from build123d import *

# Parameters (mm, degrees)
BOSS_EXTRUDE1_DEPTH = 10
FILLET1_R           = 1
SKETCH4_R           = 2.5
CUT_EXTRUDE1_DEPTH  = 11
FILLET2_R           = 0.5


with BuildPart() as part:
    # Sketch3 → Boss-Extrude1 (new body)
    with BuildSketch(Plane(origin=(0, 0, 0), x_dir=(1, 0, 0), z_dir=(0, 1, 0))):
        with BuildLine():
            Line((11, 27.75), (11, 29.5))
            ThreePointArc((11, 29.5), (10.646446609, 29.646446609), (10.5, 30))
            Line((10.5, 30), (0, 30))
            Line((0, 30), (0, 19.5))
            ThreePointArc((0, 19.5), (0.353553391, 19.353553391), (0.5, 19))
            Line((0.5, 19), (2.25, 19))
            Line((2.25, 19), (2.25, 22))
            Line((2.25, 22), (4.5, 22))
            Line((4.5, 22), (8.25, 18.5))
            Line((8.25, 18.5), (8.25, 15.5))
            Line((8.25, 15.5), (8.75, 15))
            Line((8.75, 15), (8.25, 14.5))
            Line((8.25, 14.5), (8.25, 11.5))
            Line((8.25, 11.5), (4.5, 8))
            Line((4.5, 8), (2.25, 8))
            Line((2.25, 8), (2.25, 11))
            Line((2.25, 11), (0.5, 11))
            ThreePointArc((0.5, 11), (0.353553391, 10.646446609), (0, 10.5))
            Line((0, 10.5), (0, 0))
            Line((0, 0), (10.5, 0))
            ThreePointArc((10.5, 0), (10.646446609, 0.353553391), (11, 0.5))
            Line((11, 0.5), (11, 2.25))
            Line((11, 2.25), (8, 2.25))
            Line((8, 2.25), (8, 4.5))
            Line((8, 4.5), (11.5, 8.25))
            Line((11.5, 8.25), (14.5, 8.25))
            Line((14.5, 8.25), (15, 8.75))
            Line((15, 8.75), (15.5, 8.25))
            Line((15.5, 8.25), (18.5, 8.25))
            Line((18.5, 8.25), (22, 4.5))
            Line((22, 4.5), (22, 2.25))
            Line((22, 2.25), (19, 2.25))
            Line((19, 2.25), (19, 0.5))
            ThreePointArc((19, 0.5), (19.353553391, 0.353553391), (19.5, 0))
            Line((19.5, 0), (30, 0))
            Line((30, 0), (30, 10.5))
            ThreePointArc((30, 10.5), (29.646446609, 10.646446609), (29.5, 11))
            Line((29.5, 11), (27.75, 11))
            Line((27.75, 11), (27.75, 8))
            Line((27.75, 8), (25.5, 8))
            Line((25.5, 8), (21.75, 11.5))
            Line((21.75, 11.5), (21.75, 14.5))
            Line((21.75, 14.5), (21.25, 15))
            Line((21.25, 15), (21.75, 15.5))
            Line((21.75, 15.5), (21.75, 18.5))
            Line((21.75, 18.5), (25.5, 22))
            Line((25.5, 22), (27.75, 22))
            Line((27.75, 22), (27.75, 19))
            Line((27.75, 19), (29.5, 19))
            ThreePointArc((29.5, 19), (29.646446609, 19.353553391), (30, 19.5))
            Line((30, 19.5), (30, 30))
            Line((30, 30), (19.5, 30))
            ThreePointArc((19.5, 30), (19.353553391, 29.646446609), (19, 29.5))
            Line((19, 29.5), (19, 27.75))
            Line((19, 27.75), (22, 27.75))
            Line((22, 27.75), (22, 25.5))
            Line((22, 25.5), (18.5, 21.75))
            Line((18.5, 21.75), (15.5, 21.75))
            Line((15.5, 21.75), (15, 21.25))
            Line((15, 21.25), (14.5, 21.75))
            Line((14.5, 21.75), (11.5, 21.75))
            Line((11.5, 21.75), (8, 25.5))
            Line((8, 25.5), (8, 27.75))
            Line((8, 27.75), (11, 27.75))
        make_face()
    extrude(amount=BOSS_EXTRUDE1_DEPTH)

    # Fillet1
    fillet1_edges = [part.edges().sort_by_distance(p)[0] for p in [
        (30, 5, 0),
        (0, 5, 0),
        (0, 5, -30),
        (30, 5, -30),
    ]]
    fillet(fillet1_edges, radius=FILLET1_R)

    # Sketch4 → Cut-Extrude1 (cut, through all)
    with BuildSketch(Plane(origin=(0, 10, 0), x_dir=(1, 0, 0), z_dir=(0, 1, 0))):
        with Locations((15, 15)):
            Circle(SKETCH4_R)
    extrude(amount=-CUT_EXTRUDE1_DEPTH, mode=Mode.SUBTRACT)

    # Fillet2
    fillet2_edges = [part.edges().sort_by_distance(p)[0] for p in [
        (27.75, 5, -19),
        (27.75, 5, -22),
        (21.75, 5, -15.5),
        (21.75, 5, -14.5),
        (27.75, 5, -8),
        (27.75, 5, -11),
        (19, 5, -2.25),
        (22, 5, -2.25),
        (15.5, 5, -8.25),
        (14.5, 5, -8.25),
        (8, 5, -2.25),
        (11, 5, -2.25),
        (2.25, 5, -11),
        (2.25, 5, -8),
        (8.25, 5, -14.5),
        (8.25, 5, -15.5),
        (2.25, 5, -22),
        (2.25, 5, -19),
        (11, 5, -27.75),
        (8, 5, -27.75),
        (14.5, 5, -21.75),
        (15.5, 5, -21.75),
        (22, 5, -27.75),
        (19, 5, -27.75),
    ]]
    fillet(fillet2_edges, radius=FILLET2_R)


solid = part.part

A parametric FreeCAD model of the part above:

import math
import FreeCAD as App
import Part
import Sketcher

V = App.Vector
Q = App.Units.Quantity


def edges_at(feature, points):
    """Names of the edges that pass closest to the given points."""
    edges = feature.Shape.Edges
    near = lambda p: min(range(len(edges)), key=lambda i: edges[i].distToShape(Part.Vertex(*p))[0])
    return sorted({f"Edge{near(p) + 1}" for p in points})

doc = App.newDocument("Part")
body = doc.addObject("PartDesign::Body", "Body")

# Sketch on XZ plane
sketch1 = doc.addObject("Sketcher::SketchObject", "Sketch")
body.addObject(sketch1)
sketch1.AttachmentSupport = (doc.XZ_Plane, [""])
sketch1.MapMode = "FlatFace"
sketch1.addGeometry(Part.LineSegment(V(11, -27.75, 0), V(11, -29.5, 0)), False)
sketch1.addGeometry(Part.ArcOfCircle(Part.Circle(V(11, -30, 0), V(0, 0, 1), 0.5), math.radians(90), math.radians(180)), False)
sketch1.addGeometry(Part.LineSegment(V(10.5, -30, 0), V(0, -30, 0)), False)
sketch1.addGeometry(Part.LineSegment(V(0, -30, 0), V(0, -19.5, 0)), False)
sketch1.addGeometry(Part.ArcOfCircle(Part.Circle(V(0, -19, 0), V(0, 0, 1), 0.5), math.radians(-90), math.radians(0)), False)
sketch1.addGeometry(Part.LineSegment(V(0.5, -19, 0), V(2.25, -19, 0)), False)
sketch1.addGeometry(Part.LineSegment(V(2.25, -19, 0), V(2.25, -22, 0)), False)
sketch1.addGeometry(Part.LineSegment(V(2.25, -22, 0), V(4.5, -22, 0)), False)
sketch1.addGeometry(Part.LineSegment(V(4.5, -22, 0), V(8.25, -18.5, 0)), False)
sketch1.addGeometry(Part.LineSegment(V(8.25, -18.5, 0), V(8.25, -15.5, 0)), False)
sketch1.addGeometry(Part.LineSegment(V(8.25, -15.5, 0), V(8.75, -15, 0)), False)
sketch1.addGeometry(Part.LineSegment(V(8.75, -15, 0), V(8.25, -14.5, 0)), False)
sketch1.addGeometry(Part.LineSegment(V(8.25, -14.5, 0), V(8.25, -11.5, 0)), False)
sketch1.addGeometry(Part.LineSegment(V(8.25, -11.5, 0), V(4.5, -8, 0)), False)
sketch1.addGeometry(Part.LineSegment(V(4.5, -8, 0), V(2.25, -8, 0)), False)
sketch1.addGeometry(Part.LineSegment(V(2.25, -8, 0), V(2.25, -11, 0)), False)
sketch1.addGeometry(Part.LineSegment(V(2.25, -11, 0), V(0.5, -11, 0)), False)
sketch1.addGeometry(Part.ArcOfCircle(Part.Circle(V(0, -11, 0), V(0, 0, 1), 0.5), math.radians(0), math.radians(90)), False)
sketch1.addGeometry(Part.LineSegment(V(0, -10.5, 0), V(0, 0, 0)), False)
sketch1.addGeometry(Part.LineSegment(V(0, 0, 0), V(10.5, 0, 0)), False)
sketch1.addGeometry(Part.ArcOfCircle(Part.Circle(V(11, 0, 0), V(0, 0, 1), 0.5), math.radians(180), math.radians(270)), False)
sketch1.addGeometry(Part.LineSegment(V(11, -0.5, 0), V(11, -2.25, 0)), False)
sketch1.addGeometry(Part.LineSegment(V(11, -2.25, 0), V(8, -2.25, 0)), False)
sketch1.addGeometry(Part.LineSegment(V(8, -2.25, 0), V(8, -4.5, 0)), False)
sketch1.addGeometry(Part.LineSegment(V(8, -4.5, 0), V(11.5, -8.25, 0)), False)
sketch1.addGeometry(Part.LineSegment(V(11.5, -8.25, 0), V(14.5, -8.25, 0)), False)
sketch1.addGeometry(Part.LineSegment(V(14.5, -8.25, 0), V(15, -8.75, 0)), False)
sketch1.addGeometry(Part.LineSegment(V(15, -8.75, 0), V(15.5, -8.25, 0)), False)
sketch1.addGeometry(Part.LineSegment(V(15.5, -8.25, 0), V(18.5, -8.25, 0)), False)
sketch1.addGeometry(Part.LineSegment(V(18.5, -8.25, 0), V(22, -4.5, 0)), False)
sketch1.addGeometry(Part.LineSegment(V(22, -4.5, 0), V(22, -2.25, 0)), False)
sketch1.addGeometry(Part.LineSegment(V(22, -2.25, 0), V(19, -2.25, 0)), False)
sketch1.addGeometry(Part.LineSegment(V(19, -2.25, 0), V(19, -0.5, 0)), False)
sketch1.addGeometry(Part.ArcOfCircle(Part.Circle(V(19, 0, 0), V(0, 0, 1), 0.5), math.radians(-90), math.radians(0)), False)
sketch1.addGeometry(Part.LineSegment(V(19.5, 0, 0), V(30, 0, 0)), False)
sketch1.addGeometry(Part.LineSegment(V(30, 0, 0), V(30, -10.5, 0)), False)
sketch1.addGeometry(Part.ArcOfCircle(Part.Circle(V(30, -11, 0), V(0, 0, 1), 0.5), math.radians(90), math.radians(180)), False)
sketch1.addGeometry(Part.LineSegment(V(29.5, -11, 0), V(27.75, -11, 0)), False)
sketch1.addGeometry(Part.LineSegment(V(27.75, -11, 0), V(27.75, -8, 0)), False)
sketch1.addGeometry(Part.LineSegment(V(27.75, -8, 0), V(25.5, -8, 0)), False)
sketch1.addGeometry(Part.LineSegment(V(25.5, -8, 0), V(21.75, -11.5, 0)), False)
sketch1.addGeometry(Part.LineSegment(V(21.75, -11.5, 0), V(21.75, -14.5, 0)), False)
sketch1.addGeometry(Part.LineSegment(V(21.75, -14.5, 0), V(21.25, -15, 0)), False)
sketch1.addGeometry(Part.LineSegment(V(21.25, -15, 0), V(21.75, -15.5, 0)), False)
sketch1.addGeometry(Part.LineSegment(V(21.75, -15.5, 0), V(21.75, -18.5, 0)), False)
sketch1.addGeometry(Part.LineSegment(V(21.75, -18.5, 0), V(25.5, -22, 0)), False)
sketch1.addGeometry(Part.LineSegment(V(25.5, -22, 0), V(27.75, -22, 0)), False)
sketch1.addGeometry(Part.LineSegment(V(27.75, -22, 0), V(27.75, -19, 0)), False)
sketch1.addGeometry(Part.LineSegment(V(27.75, -19, 0), V(29.5, -19, 0)), False)
sketch1.addGeometry(Part.ArcOfCircle(Part.Circle(V(30, -19, 0), V(0, 0, 1), 0.5), math.radians(180), math.radians(270)), False)
sketch1.addGeometry(Part.LineSegment(V(30, -19.5, 0), V(30, -30, 0)), False)
sketch1.addGeometry(Part.LineSegment(V(30, -30, 0), V(19.5, -30, 0)), False)
sketch1.addGeometry(Part.ArcOfCircle(Part.Circle(V(19, -30, 0), V(0, 0, 1), 0.5), math.radians(0), math.radians(90)), False)
sketch1.addGeometry(Part.LineSegment(V(19, -29.5, 0), V(19, -27.75, 0)), False)
sketch1.addGeometry(Part.LineSegment(V(19, -27.75, 0), V(22, -27.75, 0)), False)
sketch1.addGeometry(Part.LineSegment(V(22, -27.75, 0), V(22, -25.5, 0)), False)
sketch1.addGeometry(Part.LineSegment(V(22, -25.5, 0), V(18.5, -21.75, 0)), False)
sketch1.addGeometry(Part.LineSegment(V(18.5, -21.75, 0), V(15.5, -21.75, 0)), False)
sketch1.addGeometry(Part.LineSegment(V(15.5, -21.75, 0), V(15, -21.25, 0)), False)
sketch1.addGeometry(Part.LineSegment(V(15, -21.25, 0), V(14.5, -21.75, 0)), False)
sketch1.addGeometry(Part.LineSegment(V(14.5, -21.75, 0), V(11.5, -21.75, 0)), False)
sketch1.addGeometry(Part.LineSegment(V(11.5, -21.75, 0), V(8, -25.5, 0)), False)
sketch1.addGeometry(Part.LineSegment(V(8, -25.5, 0), V(8, -27.75, 0)), False)
sketch1.addGeometry(Part.LineSegment(V(8, -27.75, 0), V(11, -27.75, 0)), False)
sketch1.addConstraint(Sketcher.Constraint("Coincident", 0, 2, 1, 1))
sketch1.addConstraint(Sketcher.Constraint("Coincident", 1, 2, 2, 1))
sketch1.addConstraint(Sketcher.Constraint("Coincident", 2, 2, 3, 1))
sketch1.addConstraint(Sketcher.Constraint("Coincident", 3, 2, 4, 1))
sketch1.addConstraint(Sketcher.Constraint("Coincident", 4, 2, 5, 1))
sketch1.addConstraint(Sketcher.Constraint("Coincident", 5, 2, 6, 1))
sketch1.addConstraint(Sketcher.Constraint("Coincident", 6, 2, 7, 1))
sketch1.addConstraint(Sketcher.Constraint("Coincident", 7, 2, 8, 1))
sketch1.addConstraint(Sketcher.Constraint("Coincident", 8, 2, 9, 1))
sketch1.addConstraint(Sketcher.Constraint("Coincident", 9, 2, 10, 1))
sketch1.addConstraint(Sketcher.Constraint("Coincident", 10, 2, 11, 1))
sketch1.addConstraint(Sketcher.Constraint("Coincident", 11, 2, 12, 1))
sketch1.addConstraint(Sketcher.Constraint("Coincident", 12, 2, 13, 1))
sketch1.addConstraint(Sketcher.Constraint("Coincident", 13, 2, 14, 1))
sketch1.addConstraint(Sketcher.Constraint("Coincident", 14, 2, 15, 1))
sketch1.addConstraint(Sketcher.Constraint("Coincident", 15, 2, 16, 1))
sketch1.addConstraint(Sketcher.Constraint("Coincident", 16, 2, 17, 1))
sketch1.addConstraint(Sketcher.Constraint("Coincident", 17, 2, 18, 1))
sketch1.addConstraint(Sketcher.Constraint("Coincident", 18, 2, 19, 1))
sketch1.addConstraint(Sketcher.Constraint("Coincident", 19, 2, 20, 1))
sketch1.addConstraint(Sketcher.Constraint("Coincident", 20, 2, 21, 1))
sketch1.addConstraint(Sketcher.Constraint("Coincident", 21, 2, 22, 1))
sketch1.addConstraint(Sketcher.Constraint("Coincident", 22, 2, 23, 1))
sketch1.addConstraint(Sketcher.Constraint("Coincident", 23, 2, 24, 1))
sketch1.addConstraint(Sketcher.Constraint("Coincident", 24, 2, 25, 1))
sketch1.addConstraint(Sketcher.Constraint("Coincident", 25, 2, 26, 1))
sketch1.addConstraint(Sketcher.Constraint("Coincident", 26, 2, 27, 1))
sketch1.addConstraint(Sketcher.Constraint("Coincident", 27, 2, 28, 1))
sketch1.addConstraint(Sketcher.Constraint("Coincident", 28, 2, 29, 1))
sketch1.addConstraint(Sketcher.Constraint("Coincident", 29, 2, 30, 1))
sketch1.addConstraint(Sketcher.Constraint("Coincident", 30, 2, 31, 1))
sketch1.addConstraint(Sketcher.Constraint("Coincident", 31, 2, 32, 1))
sketch1.addConstraint(Sketcher.Constraint("Coincident", 32, 2, 33, 1))
sketch1.addConstraint(Sketcher.Constraint("Coincident", 33, 2, 34, 1))
sketch1.addConstraint(Sketcher.Constraint("Coincident", 34, 2, 35, 1))
sketch1.addConstraint(Sketcher.Constraint("Coincident", 35, 2, 36, 1))
sketch1.addConstraint(Sketcher.Constraint("Coincident", 36, 2, 37, 1))
sketch1.addConstraint(Sketcher.Constraint("Coincident", 37, 2, 38, 1))
sketch1.addConstraint(Sketcher.Constraint("Coincident", 38, 2, 39, 1))
sketch1.addConstraint(Sketcher.Constraint("Coincident", 39, 2, 40, 1))
sketch1.addConstraint(Sketcher.Constraint("Coincident", 40, 2, 41, 1))
sketch1.addConstraint(Sketcher.Constraint("Coincident", 41, 2, 42, 1))
sketch1.addConstraint(Sketcher.Constraint("Coincident", 42, 2, 43, 1))
sketch1.addConstraint(Sketcher.Constraint("Coincident", 43, 2, 44, 1))
sketch1.addConstraint(Sketcher.Constraint("Coincident", 44, 2, 45, 1))
sketch1.addConstraint(Sketcher.Constraint("Coincident", 45, 2, 46, 1))
sketch1.addConstraint(Sketcher.Constraint("Coincident", 46, 2, 47, 1))
sketch1.addConstraint(Sketcher.Constraint("Coincident", 47, 2, 48, 1))
sketch1.addConstraint(Sketcher.Constraint("Coincident", 48, 2, 49, 1))
sketch1.addConstraint(Sketcher.Constraint("Coincident", 49, 2, 50, 1))
sketch1.addConstraint(Sketcher.Constraint("Coincident", 50, 2, 51, 1))
sketch1.addConstraint(Sketcher.Constraint("Coincident", 51, 2, 52, 1))
sketch1.addConstraint(Sketcher.Constraint("Coincident", 52, 2, 53, 1))
sketch1.addConstraint(Sketcher.Constraint("Coincident", 53, 2, 54, 1))
sketch1.addConstraint(Sketcher.Constraint("Coincident", 54, 2, 55, 1))
sketch1.addConstraint(Sketcher.Constraint("Coincident", 55, 2, 56, 1))
sketch1.addConstraint(Sketcher.Constraint("Coincident", 56, 2, 57, 1))
sketch1.addConstraint(Sketcher.Constraint("Coincident", 57, 2, 58, 1))
sketch1.addConstraint(Sketcher.Constraint("Coincident", 58, 2, 59, 1))
sketch1.addConstraint(Sketcher.Constraint("Coincident", 59, 2, 60, 1))
sketch1.addConstraint(Sketcher.Constraint("Coincident", 60, 2, 61, 1))
sketch1.addConstraint(Sketcher.Constraint("Coincident", 61, 2, 62, 1))
sketch1.addConstraint(Sketcher.Constraint("Coincident", 62, 2, 63, 1))
sketch1.addConstraint(Sketcher.Constraint("Coincident", 63, 2, 0, 1))
sketch1.addConstraint(Sketcher.Constraint("Vertical", 0))
sketch1.addConstraint(Sketcher.Constraint("Horizontal", 2))
sketch1.addConstraint(Sketcher.Constraint("Vertical", 3))
sketch1.addConstraint(Sketcher.Constraint("Horizontal", 5))
sketch1.addConstraint(Sketcher.Constraint("Vertical", 6))
sketch1.addConstraint(Sketcher.Constraint("Horizontal", 7))
sketch1.addConstraint(Sketcher.Constraint("Vertical", 9))
sketch1.addConstraint(Sketcher.Constraint("Vertical", 12))
sketch1.addConstraint(Sketcher.Constraint("Horizontal", 14))
sketch1.addConstraint(Sketcher.Constraint("Vertical", 15))
sketch1.addConstraint(Sketcher.Constraint("Horizontal", 16))
sketch1.addConstraint(Sketcher.Constraint("Vertical", 18))
sketch1.addConstraint(Sketcher.Constraint("Horizontal", 19))
sketch1.addConstraint(Sketcher.Constraint("Vertical", 21))
sketch1.addConstraint(Sketcher.Constraint("Horizontal", 22))
sketch1.addConstraint(Sketcher.Constraint("Vertical", 23))
sketch1.addConstraint(Sketcher.Constraint("Horizontal", 25))
sketch1.addConstraint(Sketcher.Constraint("Horizontal", 28))
sketch1.addConstraint(Sketcher.Constraint("Vertical", 30))
sketch1.addConstraint(Sketcher.Constraint("Horizontal", 31))
sketch1.addConstraint(Sketcher.Constraint("Vertical", 32))
sketch1.addConstraint(Sketcher.Constraint("Horizontal", 34))
sketch1.addConstraint(Sketcher.Constraint("Vertical", 35))
sketch1.addConstraint(Sketcher.Constraint("Horizontal", 37))
sketch1.addConstraint(Sketcher.Constraint("Vertical", 38))
sketch1.addConstraint(Sketcher.Constraint("Horizontal", 39))
sketch1.addConstraint(Sketcher.Constraint("Vertical", 41))
sketch1.addConstraint(Sketcher.Constraint("Vertical", 44))
sketch1.addConstraint(Sketcher.Constraint("Horizontal", 46))
sketch1.addConstraint(Sketcher.Constraint("Vertical", 47))
sketch1.addConstraint(Sketcher.Constraint("Horizontal", 48))
sketch1.addConstraint(Sketcher.Constraint("Vertical", 50))
sketch1.addConstraint(Sketcher.Constraint("Horizontal", 51))
sketch1.addConstraint(Sketcher.Constraint("Vertical", 53))
sketch1.addConstraint(Sketcher.Constraint("Horizontal", 54))
sketch1.addConstraint(Sketcher.Constraint("Vertical", 55))
sketch1.addConstraint(Sketcher.Constraint("Horizontal", 57))
sketch1.addConstraint(Sketcher.Constraint("Horizontal", 60))
sketch1.addConstraint(Sketcher.Constraint("Vertical", 62))
sketch1.addConstraint(Sketcher.Constraint("Horizontal", 63))
sketch1.addConstraint(Sketcher.Constraint("Coincident", 18, 2, -1, 1))
sketch1.addConstraint(Sketcher.Constraint("Equal", 1, 4))
sketch1.addConstraint(Sketcher.Constraint("Equal", 4, 17))
sketch1.addConstraint(Sketcher.Constraint("Equal", 17, 20))
sketch1.addConstraint(Sketcher.Constraint("Equal", 20, 33))
sketch1.addConstraint(Sketcher.Constraint("Equal", 33, 36))
sketch1.addConstraint(Sketcher.Constraint("Equal", 36, 49))
sketch1.addConstraint(Sketcher.Constraint("Equal", 49, 52))
sketch1.addConstraint(Sketcher.Constraint("PointOnObject", 4, 3, -2))
sketch1.addConstraint(Sketcher.Constraint("PointOnObject", 17, 3, -2))
sketch1.addConstraint(Sketcher.Constraint("PointOnObject", 20, 3, -1))
sketch1.addConstraint(Sketcher.Constraint("PointOnObject", 33, 3, -1))
sketch1.addConstraint(Sketcher.Constraint("PointOnObject", 2, 2, -2))
sketch1.addConstraint(Sketcher.Constraint("PointOnObject", 33, 2, -1))
sketch1.addConstraint(Sketcher.Constraint("Perpendicular", 10, 11))
sketch1.addConstraint(Sketcher.Constraint("Perpendicular", 8, 24))
sketch1.addConstraint(Sketcher.Constraint("Parallel", 11, 26))
sketch1.addConstraint(Sketcher.Constraint("Perpendicular", 26, 27))
sketch1.addConstraint(Sketcher.Constraint("Perpendicular", 13, 29))
sketch1.addConstraint(Sketcher.Constraint("Perpendicular", 24, 40))
sketch1.addConstraint(Sketcher.Constraint("Parallel", 27, 42))
sketch1.addConstraint(Sketcher.Constraint("Perpendicular", 42, 43))
sketch1.addConstraint(Sketcher.Constraint("Perpendicular", 29, 45))
sketch1.addConstraint(Sketcher.Constraint("Perpendicular", 40, 56))
sketch1.addConstraint(Sketcher.Constraint("Parallel", 43, 58))
sketch1.addConstraint(Sketcher.Constraint("Perpendicular", 58, 59))
sketch1.addConstraint(Sketcher.Constraint("Perpendicular", 45, 61))
sketch1.addConstraint(Sketcher.Constraint("Horizontal", 17, 3, 36, 3))
sketch1.addConstraint(Sketcher.Constraint("Horizontal", 4, 3, 49, 3))
sketch1.addConstraint(Sketcher.Constraint("Horizontal", 1, 3, 52, 3))
sketch1.addConstraint(Sketcher.Constraint("Horizontal", 52, 3, 1, 2))
sketch1.addConstraint(Sketcher.Constraint("Horizontal", 49, 3, 4, 2))
sketch1.addConstraint(Sketcher.Constraint("Horizontal", 36, 3, 15, 2))
sketch1.addConstraint(Sketcher.Constraint("Horizontal", 25, 2, 27, 2))
sketch1.addConstraint(Sketcher.Constraint("Horizontal", 23, 2, 29, 2))
sketch1.addConstraint(Sketcher.Constraint("Horizontal", 22, 2, 30, 2))
sketch1.addConstraint(Sketcher.Constraint("Horizontal", 16, 2, 36, 2))
sketch1.addConstraint(Sketcher.Constraint("Horizontal", 14, 2, 38, 2))
sketch1.addConstraint(Sketcher.Constraint("Horizontal", 12, 2, 40, 2))
sketch1.addConstraint(Sketcher.Constraint("Horizontal", 11, 2, 41, 2))
sketch1.addConstraint(Sketcher.Constraint("Horizontal", 10, 2, 42, 2))
sketch1.addConstraint(Sketcher.Constraint("Horizontal", 9, 2, 43, 2))
sketch1.addConstraint(Sketcher.Constraint("Horizontal", 8, 2, 44, 2))
sketch1.addConstraint(Sketcher.Constraint("Horizontal", 7, 2, 45, 2))
sketch1.addConstraint(Sketcher.Constraint("Horizontal", 5, 2, 47, 2))
sketch1.addConstraint(Sketcher.Constraint("Horizontal", 2, 2, 50, 2))
sketch1.addConstraint(Sketcher.Constraint("Horizontal", 57, 2, 59, 2))
sketch1.addConstraint(Sketcher.Constraint("Horizontal", 55, 2, 61, 2))
sketch1.addConstraint(Sketcher.Constraint("Horizontal", 54, 2, 62, 2))
sketch1.addConstraint(Sketcher.Constraint("Vertical", 1, 3, 20, 3))
sketch1.addConstraint(Sketcher.Constraint("Vertical", 36, 3, 49, 3))
sketch1.addConstraint(Sketcher.Constraint("Vertical", 33, 3, 52, 3))
sketch1.addConstraint(Sketcher.Constraint("Vertical", 20, 3, 0, 2))
sketch1.addConstraint(Sketcher.Constraint("Vertical", 9, 2, 11, 2))
sketch1.addConstraint(Sketcher.Constraint("Vertical", 7, 2, 13, 2))
sketch1.addConstraint(Sketcher.Constraint("Vertical", 6, 2, 14, 2))
sketch1.addConstraint(Sketcher.Constraint("Vertical", 0, 2, 20, 2))
sketch1.addConstraint(Sketcher.Constraint("Vertical", 52, 3, 31, 2))
sketch1.addConstraint(Sketcher.Constraint("Vertical", 49, 3, 34, 2))
sketch1.addConstraint(Sketcher.Constraint("Vertical", 41, 2, 43, 2))
sketch1.addConstraint(Sketcher.Constraint("Vertical", 39, 2, 45, 2))
sketch1.addConstraint(Sketcher.Constraint("Vertical", 38, 2, 46, 2))
sketch1.addConstraint(Sketcher.Constraint("Vertical", 35, 2, 49, 2))
sketch1.addConstraint(Sketcher.Constraint("Vertical", 32, 2, 52, 2))
sketch1.addConstraint(Sketcher.Constraint("Vertical", 30, 2, 54, 2))
sketch1.addConstraint(Sketcher.Constraint("Vertical", 28, 2, 56, 2))
sketch1.addConstraint(Sketcher.Constraint("Vertical", 27, 2, 57, 2))
sketch1.addConstraint(Sketcher.Constraint("Vertical", 26, 2, 58, 2))
sketch1.addConstraint(Sketcher.Constraint("Vertical", 24, 2, 60, 2))
sketch1.addConstraint(Sketcher.Constraint("Equal", 22, 25))
sketch1.addConstraint(Sketcher.Constraint("Equal", 25, 28))
sketch1.addConstraint(Sketcher.Constraint("Equal", 28, 31))
sketch1.addConstraint(Sketcher.Constraint("Equal", 19, 34))
sketch1.addConstraint(Sketcher.Constraint("Equal", 16, 37))
sketch1.addConstraint(Sketcher.Constraint("Equal", 14, 39))
sketch1.addConstraint(Sketcher.Constraint("Equal", 48, 0))
sketch1.addConstraint(Sketcher.Constraint("Equal", 51, 3))
sketch1.addConstraint(Sketcher.Constraint("Equal", 63, 6))
sketch1.addConstraint(Sketcher.Constraint("Equal", 6, 9))
sketch1.addConstraint(Sketcher.Constraint("Equal", 9, 12))
sketch1.addConstraint(Sketcher.Constraint("Equal", 12, 15))
sketch1.addConstraint(Sketcher.Constraint("Equal", 3, 18))
sketch1.addConstraint(Sketcher.Constraint("Equal", 0, 21))
sketch1.addConstraint(Sketcher.Constraint("Equal", 46, 23))
sketch1.addConstraint(Sketcher.Constraint("Equal", 30, 55))
sketch1.addConstraint(Sketcher.Constraint("Equal", 13, 24))
sketch1.addConstraint(Sketcher.Constraint("Equal", 11, 26))
sketch1.addConstraint(Sketcher.Constraint("Radius", 1, Q("0.5 mm")))
sketch1.addConstraint(Sketcher.Constraint("DistanceX", 22, 2, 22, 1, Q("3 mm")))
sketch1.addConstraint(Sketcher.Constraint("DistanceX", 2, 2, 2, 1, Q("10.5 mm")))
sketch1.addConstraint(Sketcher.Constraint("DistanceY", 1, 3, -1, 1, Q("30 mm")))
sketch1.addConstraint(Sketcher.Constraint("DistanceX", 5, 1, 5, 2, Q("1.75 mm")))
sketch1.addConstraint(Sketcher.Constraint("DistanceX", 7, 1, 7, 2, Q("2.25 mm")))
sketch1.addConstraint(Sketcher.Constraint("DistanceY", 8, 2, -1, 1, Q("18.5 mm")))
sketch1.addConstraint(Sketcher.Constraint("DistanceX", -1, 1, 8, 2, Q("8.25 mm")))
pad1 = doc.addObject("PartDesign::Pad", "Pad")
body.addObject(pad1)
pad1.Profile = sketch1
pad1.Length = 10
pad1.Reversed = True
doc.recompute()

fillet = doc.addObject("PartDesign::Fillet", "Fillet")
body.addObject(fillet)
fillet.Base = (pad1, edges_at(pad1, [
    (30, 5, 0),
    (0, 5, 0),
    (0, 5, -30),
    (30, 5, -30),
]))
fillet.Radius = 1

# Sketch on XZ plane
sketch2 = doc.addObject("Sketcher::SketchObject", "Sketch001")
body.addObject(sketch2)
sketch2.AttachmentSupport = (doc.XZ_Plane, [""])
sketch2.MapMode = "FlatFace"
sketch2.AttachmentOffset = App.Placement(V(0, 0, -10), App.Rotation())
sketch2.addGeometry(Part.Circle(V(15, -15, 0), V(0, 0, 1), 2.5), False)
sketch2.addConstraint(Sketcher.Constraint("Diameter", 0, Q("5 mm")))
sketch2.addConstraint(Sketcher.Constraint("DistanceX", -1, 1, 0, 3, Q("15 mm")))
sketch2.addConstraint(Sketcher.Constraint("DistanceY", 0, 3, -1, 1, Q("15 mm")))
pocket1 = doc.addObject("PartDesign::Pocket", "Pocket")
body.addObject(pocket1)
pocket1.Profile = sketch2
pocket1.Type = "ThroughAll"
pocket1.Reversed = True
doc.recompute()

fillet2 = doc.addObject("PartDesign::Fillet", "Fillet001")
body.addObject(fillet2)
fillet2.Base = (pocket1, edges_at(pocket1, [
    (27.75, 5, -19),
    (27.75, 5, -22),
    (21.75, 5, -15.5),
    (21.75, 5, -14.5),
    (27.75, 5, -8),
    (27.75, 5, -11),
    (19, 5, -2.25),
    (22, 5, -2.25),
    (15.5, 5, -8.25),
    (14.5, 5, -8.25),
    (8, 5, -2.25),
    (11, 5, -2.25),
    (2.25, 5, -11),
    (2.25, 5, -8),
    (8.25, 5, -14.5),
    (8.25, 5, -15.5),
    (2.25, 5, -22),
    (2.25, 5, -19),
    (11, 5, -27.75),
    (8, 5, -27.75),
    (14.5, 5, -21.75),
    (15.5, 5, -21.75),
    (22, 5, -27.75),
    (19, 5, -27.75),
]))
fillet2.Radius = 0.5

doc.recompute()
